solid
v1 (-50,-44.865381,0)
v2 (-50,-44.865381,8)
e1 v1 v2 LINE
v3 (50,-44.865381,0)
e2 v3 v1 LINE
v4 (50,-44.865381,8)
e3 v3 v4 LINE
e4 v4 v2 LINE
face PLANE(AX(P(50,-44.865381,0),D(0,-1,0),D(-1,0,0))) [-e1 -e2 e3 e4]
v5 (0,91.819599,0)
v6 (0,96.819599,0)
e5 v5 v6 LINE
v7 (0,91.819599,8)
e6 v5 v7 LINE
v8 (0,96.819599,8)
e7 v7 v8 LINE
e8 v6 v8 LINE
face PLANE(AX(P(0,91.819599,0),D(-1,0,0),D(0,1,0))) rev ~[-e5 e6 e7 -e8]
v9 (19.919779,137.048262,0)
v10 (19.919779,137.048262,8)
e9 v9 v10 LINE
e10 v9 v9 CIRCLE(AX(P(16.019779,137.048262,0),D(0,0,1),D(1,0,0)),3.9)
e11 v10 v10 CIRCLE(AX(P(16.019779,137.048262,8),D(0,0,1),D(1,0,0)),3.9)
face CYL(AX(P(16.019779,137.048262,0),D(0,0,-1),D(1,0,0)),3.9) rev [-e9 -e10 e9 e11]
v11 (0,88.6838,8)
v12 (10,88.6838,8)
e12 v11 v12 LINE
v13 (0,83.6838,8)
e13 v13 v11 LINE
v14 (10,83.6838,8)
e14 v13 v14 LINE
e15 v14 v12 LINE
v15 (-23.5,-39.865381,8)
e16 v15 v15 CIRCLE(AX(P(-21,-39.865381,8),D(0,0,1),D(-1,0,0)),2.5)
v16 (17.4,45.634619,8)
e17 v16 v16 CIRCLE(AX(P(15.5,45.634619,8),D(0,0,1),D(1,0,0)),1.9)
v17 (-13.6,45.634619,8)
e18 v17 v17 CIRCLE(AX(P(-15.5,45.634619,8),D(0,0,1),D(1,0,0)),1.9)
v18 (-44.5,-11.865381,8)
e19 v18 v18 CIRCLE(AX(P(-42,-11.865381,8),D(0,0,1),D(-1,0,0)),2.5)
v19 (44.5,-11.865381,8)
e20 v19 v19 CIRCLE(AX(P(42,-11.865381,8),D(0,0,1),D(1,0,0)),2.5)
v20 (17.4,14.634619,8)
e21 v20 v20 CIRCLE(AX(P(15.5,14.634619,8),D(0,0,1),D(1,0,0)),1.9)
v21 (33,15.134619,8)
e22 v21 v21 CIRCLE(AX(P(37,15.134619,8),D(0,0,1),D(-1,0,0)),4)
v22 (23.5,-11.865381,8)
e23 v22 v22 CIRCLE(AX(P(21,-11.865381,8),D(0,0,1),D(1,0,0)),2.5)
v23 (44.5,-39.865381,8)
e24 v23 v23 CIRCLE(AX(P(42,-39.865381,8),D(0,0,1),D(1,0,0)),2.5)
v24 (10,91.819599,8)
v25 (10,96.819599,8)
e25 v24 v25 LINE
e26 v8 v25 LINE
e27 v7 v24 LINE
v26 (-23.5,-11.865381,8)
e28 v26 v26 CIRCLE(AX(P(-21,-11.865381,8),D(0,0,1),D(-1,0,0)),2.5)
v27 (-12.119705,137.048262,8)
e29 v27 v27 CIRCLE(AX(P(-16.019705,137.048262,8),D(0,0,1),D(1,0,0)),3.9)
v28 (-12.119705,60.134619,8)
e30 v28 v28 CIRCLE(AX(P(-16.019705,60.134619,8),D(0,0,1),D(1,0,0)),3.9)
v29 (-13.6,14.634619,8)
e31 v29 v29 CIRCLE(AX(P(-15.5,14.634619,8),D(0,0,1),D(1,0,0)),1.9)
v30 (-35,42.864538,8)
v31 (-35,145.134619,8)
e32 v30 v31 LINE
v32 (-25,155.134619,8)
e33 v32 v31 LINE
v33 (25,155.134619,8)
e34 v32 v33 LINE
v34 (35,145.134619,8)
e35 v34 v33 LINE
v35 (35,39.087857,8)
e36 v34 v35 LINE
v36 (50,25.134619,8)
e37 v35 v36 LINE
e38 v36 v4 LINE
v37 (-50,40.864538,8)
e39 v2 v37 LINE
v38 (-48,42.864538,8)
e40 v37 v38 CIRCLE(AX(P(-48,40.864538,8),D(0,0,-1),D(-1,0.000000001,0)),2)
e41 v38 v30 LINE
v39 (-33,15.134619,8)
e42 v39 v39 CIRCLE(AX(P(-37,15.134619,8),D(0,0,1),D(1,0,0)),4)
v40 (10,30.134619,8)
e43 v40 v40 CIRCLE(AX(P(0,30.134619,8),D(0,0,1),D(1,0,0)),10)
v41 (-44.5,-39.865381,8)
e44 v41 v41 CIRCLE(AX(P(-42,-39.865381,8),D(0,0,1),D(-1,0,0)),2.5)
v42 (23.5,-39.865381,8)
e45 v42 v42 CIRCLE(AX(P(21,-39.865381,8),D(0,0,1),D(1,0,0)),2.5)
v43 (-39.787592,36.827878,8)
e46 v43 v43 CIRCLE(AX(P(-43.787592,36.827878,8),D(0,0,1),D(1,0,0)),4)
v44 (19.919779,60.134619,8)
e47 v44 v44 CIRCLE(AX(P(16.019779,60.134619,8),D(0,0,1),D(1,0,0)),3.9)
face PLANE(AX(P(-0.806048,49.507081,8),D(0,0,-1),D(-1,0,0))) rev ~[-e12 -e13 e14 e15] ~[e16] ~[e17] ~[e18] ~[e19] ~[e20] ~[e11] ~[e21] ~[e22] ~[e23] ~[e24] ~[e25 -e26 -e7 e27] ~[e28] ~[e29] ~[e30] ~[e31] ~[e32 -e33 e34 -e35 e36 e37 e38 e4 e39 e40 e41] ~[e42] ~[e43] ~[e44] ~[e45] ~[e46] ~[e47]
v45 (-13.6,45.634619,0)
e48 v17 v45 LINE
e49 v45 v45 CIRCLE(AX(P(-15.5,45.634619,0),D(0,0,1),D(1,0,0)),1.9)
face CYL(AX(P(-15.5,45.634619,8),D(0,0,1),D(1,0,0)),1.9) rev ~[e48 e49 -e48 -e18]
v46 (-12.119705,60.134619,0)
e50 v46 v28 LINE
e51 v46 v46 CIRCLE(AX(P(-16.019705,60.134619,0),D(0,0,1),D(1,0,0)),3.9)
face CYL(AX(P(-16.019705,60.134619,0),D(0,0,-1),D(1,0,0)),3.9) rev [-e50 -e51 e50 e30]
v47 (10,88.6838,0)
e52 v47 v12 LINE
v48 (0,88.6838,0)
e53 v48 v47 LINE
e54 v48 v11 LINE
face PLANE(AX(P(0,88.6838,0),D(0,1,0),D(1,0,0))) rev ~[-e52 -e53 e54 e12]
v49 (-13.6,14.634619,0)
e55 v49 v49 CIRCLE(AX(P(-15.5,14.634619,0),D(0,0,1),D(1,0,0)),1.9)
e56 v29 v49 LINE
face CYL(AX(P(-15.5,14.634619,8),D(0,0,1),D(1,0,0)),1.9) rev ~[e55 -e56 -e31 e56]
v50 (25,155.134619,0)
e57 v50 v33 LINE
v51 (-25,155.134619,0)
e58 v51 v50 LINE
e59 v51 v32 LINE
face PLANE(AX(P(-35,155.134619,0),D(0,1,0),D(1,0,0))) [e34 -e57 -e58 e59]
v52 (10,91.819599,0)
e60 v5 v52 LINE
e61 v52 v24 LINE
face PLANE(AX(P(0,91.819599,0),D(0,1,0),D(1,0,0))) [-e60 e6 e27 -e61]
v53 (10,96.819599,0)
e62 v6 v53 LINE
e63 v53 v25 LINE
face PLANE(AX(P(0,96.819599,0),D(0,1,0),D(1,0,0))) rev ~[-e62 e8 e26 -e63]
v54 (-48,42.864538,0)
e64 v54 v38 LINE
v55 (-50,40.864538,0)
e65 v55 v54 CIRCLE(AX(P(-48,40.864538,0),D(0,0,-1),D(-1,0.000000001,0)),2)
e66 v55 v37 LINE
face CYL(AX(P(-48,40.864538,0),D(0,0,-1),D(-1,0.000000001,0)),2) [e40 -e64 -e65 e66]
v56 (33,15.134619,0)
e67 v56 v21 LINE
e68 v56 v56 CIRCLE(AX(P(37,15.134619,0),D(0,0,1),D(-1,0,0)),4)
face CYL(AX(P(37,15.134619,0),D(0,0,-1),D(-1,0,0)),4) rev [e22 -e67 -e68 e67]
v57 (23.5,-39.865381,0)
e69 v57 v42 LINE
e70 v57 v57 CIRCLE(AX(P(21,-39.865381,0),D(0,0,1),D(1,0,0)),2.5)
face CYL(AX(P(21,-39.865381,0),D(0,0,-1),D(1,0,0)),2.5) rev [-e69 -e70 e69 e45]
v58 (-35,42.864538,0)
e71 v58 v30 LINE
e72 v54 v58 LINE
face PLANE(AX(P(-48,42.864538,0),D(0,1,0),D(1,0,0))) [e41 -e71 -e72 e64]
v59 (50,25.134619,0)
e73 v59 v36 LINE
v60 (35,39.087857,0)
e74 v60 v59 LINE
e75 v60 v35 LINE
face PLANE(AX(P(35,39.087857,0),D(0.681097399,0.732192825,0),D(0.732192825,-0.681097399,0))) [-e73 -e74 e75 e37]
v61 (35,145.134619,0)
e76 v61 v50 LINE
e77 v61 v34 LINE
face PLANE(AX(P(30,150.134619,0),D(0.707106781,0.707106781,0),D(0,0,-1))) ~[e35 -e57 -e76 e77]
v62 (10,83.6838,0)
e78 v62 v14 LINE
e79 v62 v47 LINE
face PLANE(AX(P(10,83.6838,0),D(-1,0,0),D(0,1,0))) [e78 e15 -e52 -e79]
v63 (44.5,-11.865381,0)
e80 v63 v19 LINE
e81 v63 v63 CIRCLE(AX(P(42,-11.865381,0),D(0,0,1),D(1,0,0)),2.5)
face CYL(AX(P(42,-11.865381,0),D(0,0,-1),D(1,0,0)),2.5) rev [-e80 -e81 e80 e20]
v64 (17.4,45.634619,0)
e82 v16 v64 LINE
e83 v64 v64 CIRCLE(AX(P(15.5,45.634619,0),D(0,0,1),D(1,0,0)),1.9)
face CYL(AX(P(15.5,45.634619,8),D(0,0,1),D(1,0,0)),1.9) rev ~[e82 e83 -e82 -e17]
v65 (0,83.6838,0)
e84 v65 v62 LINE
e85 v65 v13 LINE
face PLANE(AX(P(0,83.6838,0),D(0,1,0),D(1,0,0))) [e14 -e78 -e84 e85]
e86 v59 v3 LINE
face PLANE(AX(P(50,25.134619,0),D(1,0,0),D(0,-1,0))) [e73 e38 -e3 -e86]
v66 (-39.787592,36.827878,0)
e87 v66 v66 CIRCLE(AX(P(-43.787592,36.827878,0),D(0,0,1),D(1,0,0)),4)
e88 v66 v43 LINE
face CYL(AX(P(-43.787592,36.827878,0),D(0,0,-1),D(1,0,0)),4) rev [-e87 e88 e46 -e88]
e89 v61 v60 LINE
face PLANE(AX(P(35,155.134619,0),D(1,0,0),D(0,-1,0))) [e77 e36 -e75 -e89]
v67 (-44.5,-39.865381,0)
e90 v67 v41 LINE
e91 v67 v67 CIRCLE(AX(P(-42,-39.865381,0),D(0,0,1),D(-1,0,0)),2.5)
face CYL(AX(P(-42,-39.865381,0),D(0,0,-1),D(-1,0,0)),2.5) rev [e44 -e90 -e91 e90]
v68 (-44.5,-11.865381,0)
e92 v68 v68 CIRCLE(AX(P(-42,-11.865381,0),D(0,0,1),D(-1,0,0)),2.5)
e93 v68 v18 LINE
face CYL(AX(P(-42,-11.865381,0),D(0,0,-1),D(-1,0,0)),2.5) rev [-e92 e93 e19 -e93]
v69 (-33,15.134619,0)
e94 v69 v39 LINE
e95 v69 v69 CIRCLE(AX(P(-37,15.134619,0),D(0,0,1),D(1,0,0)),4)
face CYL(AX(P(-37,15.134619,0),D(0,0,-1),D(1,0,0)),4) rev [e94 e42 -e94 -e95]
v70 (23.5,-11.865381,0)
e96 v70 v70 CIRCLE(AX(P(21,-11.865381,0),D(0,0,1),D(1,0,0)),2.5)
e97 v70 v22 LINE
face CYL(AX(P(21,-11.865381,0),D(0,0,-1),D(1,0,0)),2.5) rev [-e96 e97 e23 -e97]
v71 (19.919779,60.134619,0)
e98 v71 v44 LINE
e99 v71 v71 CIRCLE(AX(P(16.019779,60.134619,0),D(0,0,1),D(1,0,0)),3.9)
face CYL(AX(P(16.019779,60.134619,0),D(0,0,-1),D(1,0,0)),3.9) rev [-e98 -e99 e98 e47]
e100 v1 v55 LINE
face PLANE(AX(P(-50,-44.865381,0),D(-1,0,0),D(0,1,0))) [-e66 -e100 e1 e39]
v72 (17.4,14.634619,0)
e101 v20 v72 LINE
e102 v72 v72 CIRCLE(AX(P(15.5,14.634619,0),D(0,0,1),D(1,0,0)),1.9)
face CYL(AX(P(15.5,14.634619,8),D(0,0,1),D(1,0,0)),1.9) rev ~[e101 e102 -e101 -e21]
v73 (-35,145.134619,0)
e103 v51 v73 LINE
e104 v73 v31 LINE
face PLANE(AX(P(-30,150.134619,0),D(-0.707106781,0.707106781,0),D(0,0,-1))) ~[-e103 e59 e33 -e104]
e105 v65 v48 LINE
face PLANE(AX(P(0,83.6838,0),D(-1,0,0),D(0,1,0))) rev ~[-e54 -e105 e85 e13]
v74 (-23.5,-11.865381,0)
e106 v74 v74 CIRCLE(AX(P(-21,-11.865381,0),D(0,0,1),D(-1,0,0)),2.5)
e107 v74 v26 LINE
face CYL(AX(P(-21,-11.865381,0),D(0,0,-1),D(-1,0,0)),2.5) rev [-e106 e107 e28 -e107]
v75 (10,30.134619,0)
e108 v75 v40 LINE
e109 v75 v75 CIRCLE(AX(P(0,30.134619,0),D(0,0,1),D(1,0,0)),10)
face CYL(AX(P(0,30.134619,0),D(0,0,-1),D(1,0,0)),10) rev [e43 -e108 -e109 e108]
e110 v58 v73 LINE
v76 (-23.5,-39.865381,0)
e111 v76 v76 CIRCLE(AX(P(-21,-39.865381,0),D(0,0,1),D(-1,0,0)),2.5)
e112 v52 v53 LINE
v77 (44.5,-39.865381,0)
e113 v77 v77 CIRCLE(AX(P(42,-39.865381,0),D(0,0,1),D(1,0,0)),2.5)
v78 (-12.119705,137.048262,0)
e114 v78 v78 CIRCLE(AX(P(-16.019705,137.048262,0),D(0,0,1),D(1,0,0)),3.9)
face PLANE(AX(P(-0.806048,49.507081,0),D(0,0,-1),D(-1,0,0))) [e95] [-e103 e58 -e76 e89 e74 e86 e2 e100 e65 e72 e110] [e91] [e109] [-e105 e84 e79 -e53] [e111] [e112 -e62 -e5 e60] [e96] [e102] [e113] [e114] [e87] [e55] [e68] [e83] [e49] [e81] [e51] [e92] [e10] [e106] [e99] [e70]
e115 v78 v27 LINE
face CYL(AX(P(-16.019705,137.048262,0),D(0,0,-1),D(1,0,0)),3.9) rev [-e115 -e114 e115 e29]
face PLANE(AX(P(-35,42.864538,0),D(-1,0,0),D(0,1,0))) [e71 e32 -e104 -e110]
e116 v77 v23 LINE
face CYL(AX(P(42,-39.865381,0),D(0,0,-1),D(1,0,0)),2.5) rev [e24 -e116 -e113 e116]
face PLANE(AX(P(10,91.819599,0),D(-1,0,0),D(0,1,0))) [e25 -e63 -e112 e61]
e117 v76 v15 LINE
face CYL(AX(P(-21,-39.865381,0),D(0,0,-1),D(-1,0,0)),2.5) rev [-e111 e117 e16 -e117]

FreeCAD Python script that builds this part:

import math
import FreeCAD as App
import Part
import Sketcher
from FreeCAD import Vector
Q = App.Units.Quantity


def edges_at(feature, points):
    """Names of the edges that pass closest to the given points."""
    edges = feature.Shape.Edges
    near = lambda p: min(range(len(edges)), key=lambda i: edges[i].distToShape(Part.Vertex(*p))[0])
    return sorted({f"Edge{near(p) + 1}" for p in points})

doc = App.newDocument("Part")
body = doc.addObject("PartDesign::Body", "Body")

sketch1 = body.newObject("Sketcher::SketchObject", "Sketch")
sketch1.AttachmentSupport = (doc.getObject("XY_Plane"), [""])
sketch1.MapMode = "FlatFace"
sketch1.addGeometry([
    Part.LineSegment(Vector(-50, -44.9, 0), Vector(50, -44.9, 0)),
    Part.LineSegment(Vector(50, -44.9, 0), Vector(50, 25.1, 0)),
    Part.LineSegment(Vector(50, 25.1, 0), Vector(35, 39.1, 0)),
    Part.LineSegment(Vector(35, 39.1, 0), Vector(35, 155.1, 0)),
    Part.LineSegment(Vector(35, 155.1, 0), Vector(-35, 155.1, 0)),
    Part.LineSegment(Vector(-35, 155.1, 0), Vector(-35, 42.9, 0)),
    Part.LineSegment(Vector(-35, 42.9, 0), Vector(-48, 42.9, 0)),
    Part.ArcOfCircle(Part.Circle(Vector(-48, 40.9, 0), Vector(0, 0, 1), 2), math.radians(90), math.radians(180)),
    Part.LineSegment(Vector(-50, 40.9, 0), Vector(-50, -44.9, 0)),
    Part.Circle(Vector(42, -39.9, 0), Vector(0, 0, 1), 2.5),
    Part.Circle(Vector(42, -11.9, 0), Vector(0, 0, 1), 2.5),
    Part.Circle(Vector(21, -39.9, 0), Vector(0, 0, 1), 2.5),
    Part.Circle(Vector(21, -11.9, 0), Vector(0, 0, 1), 2.5),
    Part.Circle(Vector(37, 15.1, 0), Vector(0, 0, 1), 4),
    Part.Circle(Vector(0, 30.1, 0), Vector(0, 0, 1), 10),
    Part.Circle(Vector(-21, -39.9, 0), Vector(0, 0, 1), 2.5),
    Part.Circle(Vector(-21, -11.9, 0), Vector(0, 0, 1), 2.5),
    Part.Circle(Vector(-42, -39.9, 0), Vector(0, 0, 1), 2.5),
    Part.Circle(Vector(-42, -11.9, 0), Vector(0, 0, 1), 2.5),
    Part.Circle(Vector(-37, 15.1, 0), Vector(0, 0, 1), 4),
    Part.Circle(Vector(-43.8, 36.8, 0), Vector(0, 0, 1), 4),
    Part.Circle(Vector(16, 60.1, 0), Vector(0, 0, 1), 3.9),
    Part.LineSegment(Vector(0, 83.7, 0), Vector(0, 88.7, 0)),
    Part.LineSegment(Vector(0, 88.7, 0), Vector(10, 88.7, 0)),
    Part.LineSegment(Vector(10, 88.7, 0), Vector(10, 83.7, 0)),
    Part.LineSegment(Vector(10, 83.7, 0), Vector(0, 83.7, 0)),
    Part.LineSegment(Vector(0, 91.8, 0), Vector(0, 96.8, 0)),
    Part.LineSegment(Vector(0, 96.8, 0), Vector(10, 96.8, 0)),
    Part.LineSegment(Vector(10, 96.8, 0), Vector(10, 91.8, 0)),
    Part.LineSegment(Vector(10, 91.8, 0), Vector(0, 91.8, 0)),
    Part.Circle(Vector(16, 137, 0), Vector(0, 0, 1), 3.9),
    Part.Circle(Vector(-16, 60.1, 0), Vector(0, 0, 1), 3.9),
    Part.Circle(Vector(-16, 137, 0), Vector(0, 0, 1), 3.9),
], False)
sketch1.addConstraint([
    Sketcher.Constraint("Coincident", 0, 2, 1, 1),
    Sketcher.Constraint("Coincident", 1, 2, 2, 1),
    Sketcher.Constraint("Coincident", 2, 2, 3, 1),
    Sketcher.Constraint("Coincident", 3, 2, 4, 1),
    Sketcher.Constraint("Coincident", 4, 2, 5, 1),
    Sketcher.Constraint("Coincident", 5, 2, 6, 1),
    Sketcher.Constraint("Tangent", 6, 2, 7, 1),
    Sketcher.Constraint("Tangent", 7, 2, 8, 1),
    Sketcher.Constraint("Coincident", 8, 2, 0, 1),
    Sketcher.Constraint("Coincident", 22, 2, 23, 1),
    Sketcher.Constraint("Coincident", 23, 2, 24, 1),
    Sketcher.Constraint("Coincident", 24, 2, 25, 1),
    Sketcher.Constraint("Coincident", 25, 2, 22, 1),
    Sketcher.Constraint("Coincident", 26, 2, 27, 1),
    Sketcher.Constraint("Coincident", 27, 2, 28, 1),
    Sketcher.Constraint("Coincident", 28, 2, 29, 1),
    Sketcher.Constraint("Coincident", 29, 2, 26, 1),
    Sketcher.Constraint("Horizontal", 0),
    Sketcher.Constraint("Vertical", 1),
    Sketcher.Constraint("Vertical", 3),
    Sketcher.Constraint("Horizontal", 4),
    Sketcher.Constraint("Vertical", 5),
    Sketcher.Constraint("Horizontal", 6),
    Sketcher.Constraint("Vertical", 8),
    Sketcher.Constraint("Vertical", 22),
    Sketcher.Constraint("Horizontal", 23),
    Sketcher.Constraint("Vertical", 24),
    Sketcher.Constraint("Horizontal", 25),
    Sketcher.Constraint("Vertical", 26),
    Sketcher.Constraint("Horizontal", 27),
    Sketcher.Constraint("Vertical", 28),
    Sketcher.Constraint("Horizontal", 29),
    Sketcher.Constraint("Equal", 9, 10),
    Sketcher.Constraint("Equal", 10, 11),
    Sketcher.Constraint("Equal", 11, 12),
    Sketcher.Constraint("Equal", 12, 15),
    Sketcher.Constraint("Equal", 15, 16),
    Sketcher.Constraint("Equal", 16, 17),
    Sketcher.Constraint("Equal", 17, 18),
    Sketcher.Constraint("Equal", 13, 19),
    Sketcher.Constraint("Equal", 19, 20),
    Sketcher.Constraint("Equal", 21, 30),
    Sketcher.Constraint("Equal", 30, 31),
    Sketcher.Constraint("Equal", 31, 32),
    Sketcher.Constraint("Symmetric", 11, 3, 15, 3, -2),
    Sketcher.Constraint("Symmetric", 12, 3, 16, 3, -2),
    Sketcher.Constraint("Symmetric", 9, 3, 17, 3, -2),
    Sketcher.Constraint("Symmetric", 10, 3, 18, 3, -2),
    Sketcher.Constraint("Symmetric", 13, 3, 19, 3, -2),
    Sketcher.Constraint("PointOnObject", 14, 3, -2),
    Sketcher.Constraint("PointOnObject", 22, 2, -2),
    Sketcher.Constraint("PointOnObject", 26, 2, -2),
    Sketcher.Constraint("Horizontal", 9, 3, 11, 3),
    Sketcher.Constraint("Horizontal", 10, 3, 12, 3),
    Sketcher.Constraint("Horizontal", 21, 3, 31, 3),
    Sketcher.Constraint("Horizontal", 30, 3, 32, 3),
    Sketcher.Constraint("Vertical", 9, 3, 10, 3),
    Sketcher.Constraint("Vertical", 11, 3, 12, 3),
    Sketcher.Constraint("Vertical", 21, 3, 30, 3),
    Sketcher.Constraint("Vertical", 31, 3, 32, 3),
    Sketcher.Constraint("Vertical", 24, 2, 27, 2),
    Sketcher.Constraint("Equal", 4, 1),
    Sketcher.Constraint("Equal", 24, 26),
    Sketcher.Constraint("Diameter", 9, Q("5 mm")),
    Sketcher.Constraint("Diameter", 13, Q("8 mm")),
    Sketcher.Constraint("Diameter", 14, Q("20 mm")),
    Sketcher.Constraint("Radius", 7, Q("2 mm")),
    Sketcher.Constraint("Diameter", 21, Q("7.8 mm")),
    Sketcher.Constraint("DistanceX", 0, 1, 0, 2, Q("100 mm")),
    Sketcher.Constraint("DistanceX", 4, 2, 4, 1, Q("70 mm")),
    Sketcher.Constraint("DistanceX", 6, 2, 6, 1, Q("13 mm")),
    Sketcher.Constraint("DistanceX", 23, 1, 23, 2, Q("10 mm")),
    Sketcher.Constraint("DistanceY", 22, 1, 22, 2, Q("5 mm")),
    Sketcher.Constraint("DistanceX", 7, 3, -1, 1, Q("48 mm")),
    Sketcher.Constraint("DistanceX", -1, 1, 9, 3, Q("42 mm")),
    Sketcher.Constraint("DistanceX", -1, 1, 11, 3, Q("21 mm")),
    Sketcher.Constraint("DistanceX", -1, 1, 13, 3, Q("37 mm")),
    Sketcher.Constraint("DistanceY", 9, 3, 10, 3, Q("28 mm")),
    Sketcher.Constraint("DistanceY", 10, 3, 13, 3, Q("27 mm")),
    Sketcher.Constraint("DistanceY", 13, 3, 14, 3, Q("15 mm")),
    Sketcher.Constraint("DistanceY", 14, 3, 21, 3, Q("30 mm")),
    Sketcher.Constraint("DistanceY", 0, 2, 9, 3, Q("5 mm")),
    Sketcher.Constraint("DistanceY", 21, 3, 3, 2, Q("95 mm")),
    Sketcher.Constraint("DistanceY", 3, 1, 3, 2, Q("116.046762 mm")),
    Sketcher.Constraint("DistanceY", 5, 2, 5, 1, Q("112.270081 mm")),
    Sketcher.Constraint("DistanceY", -1, 1, 22, 2, Q("88.6838 mm")),
    Sketcher.Constraint("DistanceY", -1, 1, 26, 2, Q("96.819599 mm")),
    Sketcher.Constraint("DistanceY", 9, 3, -1, 1, Q("39.865381 mm")),
    Sketcher.Constraint("DistanceX", 20, 3, -1, 1, Q("43.787592 mm")),
    Sketcher.Constraint("DistanceX", -1, 1, 21, 3, Q("16.019779 mm")),
    Sketcher.Constraint("DistanceY", -1, 1, 30, 3, Q("137.048262 mm")),
    Sketcher.Constraint("DistanceY", 20, 3, 7, 3, Q("4.03666 mm")),
    Sketcher.Constraint("DistanceX", 31, 3, -1, 1, Q("16.019705 mm")),
])
pad1 = body.newObject("PartDesign::Pad", "Pad")
pad1.Profile = sketch1
pad1.Length = 8

sketch2 = body.newObject("Sketcher::SketchObject", "Sketch001")
sketch2.AttachmentSupport = (doc.getObject("XY_Plane"), [""])
sketch2.MapMode = "FlatFace"
sketch2.AttachmentOffset = App.Placement(Vector(0, 0, 8), App.Rotation())
sketch2.addGeometry([
    Part.Circle(Vector(-15.5, 14.6, 0), Vector(0, 0, 1), 1.9),
    Part.Circle(Vector(-15.5, 45.6, 0), Vector(0, 0, 1), 1.9),
    Part.Circle(Vector(15.5, 45.6, 0), Vector(0, 0, 1), 1.9),
    Part.Circle(Vector(15.5, 14.6, 0), Vector(0, 0, 1), 1.9),
], False)
sketch2.addConstraint([
    Sketcher.Constraint("Equal", 0, 1),
    Sketcher.Constraint("Equal", 1, 2),
    Sketcher.Constraint("Equal", 2, 3),
    Sketcher.Constraint("Symmetric", 1, 3, 2, 3, -2),
    Sketcher.Constraint("Symmetric", 0, 3, 3, 3, -2),
    Sketcher.Constraint("Vertical", 0, 3, 1, 3),
    Sketcher.Constraint("Diameter", 0, Q("3.8 mm")),
    Sketcher.Constraint("DistanceY", 0, 3, 1, 3, Q("31 mm")),
    Sketcher.Constraint("DistanceX", 1, 3, 2, 3, Q("31 mm")),
    Sketcher.Constraint("DistanceY", -1, 1, 0, 3, Q("14.634619 mm")),
])
pocket1 = body.newObject("PartDesign::Pocket", "Pocket")
pocket1.Profile = sketch2
pocket1.Length = 10
doc.recompute()

chamfer = body.newObject("PartDesign::Chamfer", "Chamfer")
chamfer.Base = (pocket1, edges_at(pocket1, [(-35, 155.135, 4), (35, 155.135, 4)]))
chamfer.Size = 10

doc.recompute()
